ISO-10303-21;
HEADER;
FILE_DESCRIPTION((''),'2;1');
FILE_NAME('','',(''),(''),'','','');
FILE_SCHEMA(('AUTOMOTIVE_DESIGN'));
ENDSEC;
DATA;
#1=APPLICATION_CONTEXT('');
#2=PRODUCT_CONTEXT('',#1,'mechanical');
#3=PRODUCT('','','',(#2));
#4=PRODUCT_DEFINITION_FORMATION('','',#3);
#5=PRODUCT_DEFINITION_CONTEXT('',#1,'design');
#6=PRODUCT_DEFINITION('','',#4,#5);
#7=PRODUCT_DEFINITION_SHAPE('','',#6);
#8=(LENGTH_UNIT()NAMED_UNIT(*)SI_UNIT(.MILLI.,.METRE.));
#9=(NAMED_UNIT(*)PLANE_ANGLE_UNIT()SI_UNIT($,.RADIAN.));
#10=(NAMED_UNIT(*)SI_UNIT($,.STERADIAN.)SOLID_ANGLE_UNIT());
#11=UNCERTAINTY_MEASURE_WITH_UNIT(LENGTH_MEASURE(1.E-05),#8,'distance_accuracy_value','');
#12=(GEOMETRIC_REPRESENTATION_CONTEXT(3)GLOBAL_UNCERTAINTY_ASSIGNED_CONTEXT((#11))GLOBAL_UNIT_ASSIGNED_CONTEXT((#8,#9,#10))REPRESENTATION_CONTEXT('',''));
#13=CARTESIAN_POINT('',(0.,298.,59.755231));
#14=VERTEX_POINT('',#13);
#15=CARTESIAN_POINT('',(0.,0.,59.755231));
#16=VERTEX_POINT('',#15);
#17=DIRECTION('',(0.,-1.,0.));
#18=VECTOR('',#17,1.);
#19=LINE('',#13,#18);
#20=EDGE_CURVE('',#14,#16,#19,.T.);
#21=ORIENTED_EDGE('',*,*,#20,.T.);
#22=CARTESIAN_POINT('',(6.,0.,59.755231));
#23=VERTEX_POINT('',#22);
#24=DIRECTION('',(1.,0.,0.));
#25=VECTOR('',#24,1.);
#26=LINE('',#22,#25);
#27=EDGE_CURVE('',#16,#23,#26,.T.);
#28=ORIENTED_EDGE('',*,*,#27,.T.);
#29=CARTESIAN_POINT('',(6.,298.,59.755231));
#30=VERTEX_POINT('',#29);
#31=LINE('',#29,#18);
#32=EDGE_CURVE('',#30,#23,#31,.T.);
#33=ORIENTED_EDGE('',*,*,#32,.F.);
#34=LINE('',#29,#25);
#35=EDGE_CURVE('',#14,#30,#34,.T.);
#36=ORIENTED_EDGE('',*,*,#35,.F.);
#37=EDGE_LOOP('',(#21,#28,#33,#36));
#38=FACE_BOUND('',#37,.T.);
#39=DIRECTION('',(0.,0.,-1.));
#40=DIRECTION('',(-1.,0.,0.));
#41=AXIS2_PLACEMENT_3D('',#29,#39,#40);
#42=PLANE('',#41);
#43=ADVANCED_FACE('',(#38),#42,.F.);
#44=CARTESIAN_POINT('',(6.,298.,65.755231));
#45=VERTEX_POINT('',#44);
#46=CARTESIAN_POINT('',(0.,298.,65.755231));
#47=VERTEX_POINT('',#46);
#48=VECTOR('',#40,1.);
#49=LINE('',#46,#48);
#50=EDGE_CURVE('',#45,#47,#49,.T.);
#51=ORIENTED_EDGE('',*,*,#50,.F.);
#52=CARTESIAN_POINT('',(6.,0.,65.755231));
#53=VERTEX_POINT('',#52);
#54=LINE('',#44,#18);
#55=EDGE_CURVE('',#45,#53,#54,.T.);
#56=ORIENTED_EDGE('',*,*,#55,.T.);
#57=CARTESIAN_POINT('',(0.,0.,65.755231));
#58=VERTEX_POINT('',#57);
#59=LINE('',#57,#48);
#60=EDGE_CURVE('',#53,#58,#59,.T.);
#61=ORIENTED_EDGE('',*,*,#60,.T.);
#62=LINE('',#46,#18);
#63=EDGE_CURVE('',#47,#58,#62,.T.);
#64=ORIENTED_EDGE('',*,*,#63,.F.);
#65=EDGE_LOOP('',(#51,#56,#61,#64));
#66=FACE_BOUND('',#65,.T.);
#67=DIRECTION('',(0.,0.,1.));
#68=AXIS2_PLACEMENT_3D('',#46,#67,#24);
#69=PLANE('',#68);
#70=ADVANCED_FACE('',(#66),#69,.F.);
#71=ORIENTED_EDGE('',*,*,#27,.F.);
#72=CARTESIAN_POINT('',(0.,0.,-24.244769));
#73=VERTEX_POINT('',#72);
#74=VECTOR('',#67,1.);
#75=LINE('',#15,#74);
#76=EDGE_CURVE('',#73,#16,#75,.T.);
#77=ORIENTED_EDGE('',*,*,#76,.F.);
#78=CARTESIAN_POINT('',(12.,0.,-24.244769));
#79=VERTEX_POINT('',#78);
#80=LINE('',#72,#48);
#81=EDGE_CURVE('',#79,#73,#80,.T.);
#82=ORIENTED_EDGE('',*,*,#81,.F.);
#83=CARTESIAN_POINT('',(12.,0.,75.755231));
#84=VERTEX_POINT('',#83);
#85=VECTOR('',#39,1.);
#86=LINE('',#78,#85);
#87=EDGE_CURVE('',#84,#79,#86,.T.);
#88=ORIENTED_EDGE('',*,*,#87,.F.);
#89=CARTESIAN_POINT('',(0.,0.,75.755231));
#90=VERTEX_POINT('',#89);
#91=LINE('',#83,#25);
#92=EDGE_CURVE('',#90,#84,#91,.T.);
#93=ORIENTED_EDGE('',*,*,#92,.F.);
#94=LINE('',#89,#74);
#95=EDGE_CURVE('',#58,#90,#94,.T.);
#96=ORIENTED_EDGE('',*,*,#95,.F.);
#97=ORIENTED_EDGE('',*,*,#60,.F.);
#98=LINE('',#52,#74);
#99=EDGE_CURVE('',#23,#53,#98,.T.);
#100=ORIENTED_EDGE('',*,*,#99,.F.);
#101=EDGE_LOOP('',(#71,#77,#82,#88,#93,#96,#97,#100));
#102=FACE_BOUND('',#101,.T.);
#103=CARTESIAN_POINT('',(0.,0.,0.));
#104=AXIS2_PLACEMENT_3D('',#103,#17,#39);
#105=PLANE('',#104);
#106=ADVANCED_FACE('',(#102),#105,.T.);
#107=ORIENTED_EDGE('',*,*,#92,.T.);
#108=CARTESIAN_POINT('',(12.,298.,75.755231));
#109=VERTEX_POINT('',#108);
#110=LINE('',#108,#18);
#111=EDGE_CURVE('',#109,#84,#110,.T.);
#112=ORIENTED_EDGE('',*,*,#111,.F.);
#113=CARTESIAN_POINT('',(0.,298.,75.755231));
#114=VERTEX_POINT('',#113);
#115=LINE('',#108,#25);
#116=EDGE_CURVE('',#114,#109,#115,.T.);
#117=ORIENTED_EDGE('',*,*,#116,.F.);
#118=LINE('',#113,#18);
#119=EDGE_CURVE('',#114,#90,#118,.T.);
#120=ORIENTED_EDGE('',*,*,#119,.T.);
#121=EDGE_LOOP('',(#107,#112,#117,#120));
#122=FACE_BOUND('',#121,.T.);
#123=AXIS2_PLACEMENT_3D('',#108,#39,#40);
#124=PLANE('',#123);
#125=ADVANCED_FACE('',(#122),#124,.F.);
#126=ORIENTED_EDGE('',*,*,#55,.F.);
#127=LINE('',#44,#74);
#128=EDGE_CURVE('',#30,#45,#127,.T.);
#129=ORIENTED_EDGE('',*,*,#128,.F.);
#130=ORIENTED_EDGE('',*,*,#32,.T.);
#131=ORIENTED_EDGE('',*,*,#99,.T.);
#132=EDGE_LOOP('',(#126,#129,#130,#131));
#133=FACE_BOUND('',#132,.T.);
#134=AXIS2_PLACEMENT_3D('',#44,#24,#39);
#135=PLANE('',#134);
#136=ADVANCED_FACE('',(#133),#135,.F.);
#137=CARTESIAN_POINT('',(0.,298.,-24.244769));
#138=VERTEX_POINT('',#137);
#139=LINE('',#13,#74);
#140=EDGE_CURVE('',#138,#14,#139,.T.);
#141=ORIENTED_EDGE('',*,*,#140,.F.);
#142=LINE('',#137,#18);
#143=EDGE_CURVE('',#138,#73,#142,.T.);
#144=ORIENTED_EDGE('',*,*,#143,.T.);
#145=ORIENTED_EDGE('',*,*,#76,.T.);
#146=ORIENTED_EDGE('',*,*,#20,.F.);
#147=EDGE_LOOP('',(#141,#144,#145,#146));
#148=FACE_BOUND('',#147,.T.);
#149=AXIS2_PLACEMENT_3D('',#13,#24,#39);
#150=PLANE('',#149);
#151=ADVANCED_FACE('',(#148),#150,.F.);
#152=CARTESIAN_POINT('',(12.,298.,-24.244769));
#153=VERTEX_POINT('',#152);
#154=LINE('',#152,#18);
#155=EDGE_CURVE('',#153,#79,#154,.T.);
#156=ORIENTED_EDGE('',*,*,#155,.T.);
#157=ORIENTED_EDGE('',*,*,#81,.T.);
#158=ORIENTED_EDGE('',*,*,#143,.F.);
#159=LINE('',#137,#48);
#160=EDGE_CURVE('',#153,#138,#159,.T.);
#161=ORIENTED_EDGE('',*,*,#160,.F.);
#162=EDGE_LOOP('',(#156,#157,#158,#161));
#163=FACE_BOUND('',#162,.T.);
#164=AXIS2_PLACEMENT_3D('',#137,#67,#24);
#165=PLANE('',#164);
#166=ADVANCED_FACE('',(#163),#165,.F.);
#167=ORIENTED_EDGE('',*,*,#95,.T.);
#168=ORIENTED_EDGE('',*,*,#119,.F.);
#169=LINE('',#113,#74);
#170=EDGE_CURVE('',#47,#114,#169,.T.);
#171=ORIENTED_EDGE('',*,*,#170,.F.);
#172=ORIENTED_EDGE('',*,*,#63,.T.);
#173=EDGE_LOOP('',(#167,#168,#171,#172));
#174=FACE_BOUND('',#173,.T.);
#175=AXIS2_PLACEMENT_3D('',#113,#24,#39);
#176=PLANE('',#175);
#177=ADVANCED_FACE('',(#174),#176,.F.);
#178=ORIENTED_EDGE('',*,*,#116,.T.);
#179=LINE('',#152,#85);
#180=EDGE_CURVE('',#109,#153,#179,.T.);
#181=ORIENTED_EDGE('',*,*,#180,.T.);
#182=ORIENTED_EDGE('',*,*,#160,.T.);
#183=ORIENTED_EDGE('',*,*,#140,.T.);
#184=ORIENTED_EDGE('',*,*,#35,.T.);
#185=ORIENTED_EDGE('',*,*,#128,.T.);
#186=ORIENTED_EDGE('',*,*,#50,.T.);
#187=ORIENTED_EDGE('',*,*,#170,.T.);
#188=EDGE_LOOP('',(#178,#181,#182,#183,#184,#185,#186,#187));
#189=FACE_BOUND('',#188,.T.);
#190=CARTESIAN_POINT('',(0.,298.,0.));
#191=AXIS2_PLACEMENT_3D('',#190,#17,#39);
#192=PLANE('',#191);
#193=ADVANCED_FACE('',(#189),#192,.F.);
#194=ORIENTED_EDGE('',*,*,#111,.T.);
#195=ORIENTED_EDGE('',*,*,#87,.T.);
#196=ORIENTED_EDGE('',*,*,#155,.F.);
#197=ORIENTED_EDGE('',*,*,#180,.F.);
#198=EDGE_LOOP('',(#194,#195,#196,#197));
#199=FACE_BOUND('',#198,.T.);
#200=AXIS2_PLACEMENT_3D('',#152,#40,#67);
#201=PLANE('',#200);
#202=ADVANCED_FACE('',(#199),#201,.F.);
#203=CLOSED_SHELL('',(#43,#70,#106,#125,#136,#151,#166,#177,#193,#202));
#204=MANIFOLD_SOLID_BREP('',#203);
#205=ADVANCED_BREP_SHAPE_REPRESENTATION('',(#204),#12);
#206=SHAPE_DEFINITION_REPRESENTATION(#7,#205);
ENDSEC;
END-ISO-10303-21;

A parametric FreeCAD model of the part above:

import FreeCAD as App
import Part
import Sketcher
from FreeCAD import Vector
Q = App.Units.Quantity

doc = App.newDocument("Part")
body = doc.addObject("PartDesign::Body", "Body")

sketch1 = body.newObject("Sketcher::SketchObject", "Sketch")
sketch1.AttachmentSupport = (doc.getObject("XZ_Plane"), [""])
sketch1.MapMode = "FlatFace"
sketch1.addGeometry([
    Part.LineSegment(Vector(12, 76, 0), Vector(12, -24, 0)),
    Part.LineSegment(Vector(12, -24, 0), Vector(0, -24, 0)),
    Part.LineSegment(Vector(0, -24, 0), Vector(0, 60, 0)),
    Part.LineSegment(Vector(0, 60, 0), Vector(6, 60, 0)),
    Part.LineSegment(Vector(6, 60, 0), Vector(6, 66, 0)),
    Part.LineSegment(Vector(6, 66, 0), Vector(0, 66, 0)),
    Part.LineSegment(Vector(0, 66, 0), Vector(0, 76, 0)),
    Part.LineSegment(Vector(0, 76, 0), Vector(12, 76, 0)),
], False)
sketch1.addConstraint([
    Sketcher.Constraint("Coincident", 0, 2, 1, 1),
    Sketcher.Constraint("Coincident", 1, 2, 2, 1),
    Sketcher.Constraint("Coincident", 2, 2, 3, 1),
    Sketcher.Constraint("Coincident", 3, 2, 4, 1),
    Sketcher.Constraint("Coincident", 4, 2, 5, 1),
    Sketcher.Constraint("Coincident", 5, 2, 6, 1),
    Sketcher.Constraint("Coincident", 6, 2, 7, 1),
    Sketcher.Constraint("Coincident", 7, 2, 0, 1),
    Sketcher.Constraint("Vertical", 0),
    Sketcher.Constraint("Horizontal", 1),
    Sketcher.Constraint("Vertical", 2),
    Sketcher.Constraint("Horizontal", 3),
    Sketcher.Constraint("Vertical", 4),
    Sketcher.Constraint("Horizontal", 5),
    Sketcher.Constraint("Vertical", 6),
    Sketcher.Constraint("Horizontal", 7),
    Sketcher.Constraint("PointOnObject", 1, 2, -2),
    Sketcher.Constraint("PointOnObject", 5, 2, -2),
    Sketcher.Constraint("Equal", 5, 4),
    Sketcher.Constraint("DistanceX", 1, 2, 1, 1, Q("12 mm")),
    Sketcher.Constraint("DistanceX", 3, 1, 3, 2, Q("6 mm")),
    Sketcher.Constraint("DistanceY", 0, 2, 0, 1, Q("100 mm")),
    Sketcher.Constraint("DistanceY", 2, 1, 2, 2, Q("84 mm")),
    Sketcher.Constraint("DistanceY", 0, 2, -1, 1, Q("24.244769 mm")),
])
pad1 = body.newObject("PartDesign::Pad", "Pad")
pad1.Profile = sketch1
pad1.Length = 298
pad1.Reversed = True

doc.recompute()
